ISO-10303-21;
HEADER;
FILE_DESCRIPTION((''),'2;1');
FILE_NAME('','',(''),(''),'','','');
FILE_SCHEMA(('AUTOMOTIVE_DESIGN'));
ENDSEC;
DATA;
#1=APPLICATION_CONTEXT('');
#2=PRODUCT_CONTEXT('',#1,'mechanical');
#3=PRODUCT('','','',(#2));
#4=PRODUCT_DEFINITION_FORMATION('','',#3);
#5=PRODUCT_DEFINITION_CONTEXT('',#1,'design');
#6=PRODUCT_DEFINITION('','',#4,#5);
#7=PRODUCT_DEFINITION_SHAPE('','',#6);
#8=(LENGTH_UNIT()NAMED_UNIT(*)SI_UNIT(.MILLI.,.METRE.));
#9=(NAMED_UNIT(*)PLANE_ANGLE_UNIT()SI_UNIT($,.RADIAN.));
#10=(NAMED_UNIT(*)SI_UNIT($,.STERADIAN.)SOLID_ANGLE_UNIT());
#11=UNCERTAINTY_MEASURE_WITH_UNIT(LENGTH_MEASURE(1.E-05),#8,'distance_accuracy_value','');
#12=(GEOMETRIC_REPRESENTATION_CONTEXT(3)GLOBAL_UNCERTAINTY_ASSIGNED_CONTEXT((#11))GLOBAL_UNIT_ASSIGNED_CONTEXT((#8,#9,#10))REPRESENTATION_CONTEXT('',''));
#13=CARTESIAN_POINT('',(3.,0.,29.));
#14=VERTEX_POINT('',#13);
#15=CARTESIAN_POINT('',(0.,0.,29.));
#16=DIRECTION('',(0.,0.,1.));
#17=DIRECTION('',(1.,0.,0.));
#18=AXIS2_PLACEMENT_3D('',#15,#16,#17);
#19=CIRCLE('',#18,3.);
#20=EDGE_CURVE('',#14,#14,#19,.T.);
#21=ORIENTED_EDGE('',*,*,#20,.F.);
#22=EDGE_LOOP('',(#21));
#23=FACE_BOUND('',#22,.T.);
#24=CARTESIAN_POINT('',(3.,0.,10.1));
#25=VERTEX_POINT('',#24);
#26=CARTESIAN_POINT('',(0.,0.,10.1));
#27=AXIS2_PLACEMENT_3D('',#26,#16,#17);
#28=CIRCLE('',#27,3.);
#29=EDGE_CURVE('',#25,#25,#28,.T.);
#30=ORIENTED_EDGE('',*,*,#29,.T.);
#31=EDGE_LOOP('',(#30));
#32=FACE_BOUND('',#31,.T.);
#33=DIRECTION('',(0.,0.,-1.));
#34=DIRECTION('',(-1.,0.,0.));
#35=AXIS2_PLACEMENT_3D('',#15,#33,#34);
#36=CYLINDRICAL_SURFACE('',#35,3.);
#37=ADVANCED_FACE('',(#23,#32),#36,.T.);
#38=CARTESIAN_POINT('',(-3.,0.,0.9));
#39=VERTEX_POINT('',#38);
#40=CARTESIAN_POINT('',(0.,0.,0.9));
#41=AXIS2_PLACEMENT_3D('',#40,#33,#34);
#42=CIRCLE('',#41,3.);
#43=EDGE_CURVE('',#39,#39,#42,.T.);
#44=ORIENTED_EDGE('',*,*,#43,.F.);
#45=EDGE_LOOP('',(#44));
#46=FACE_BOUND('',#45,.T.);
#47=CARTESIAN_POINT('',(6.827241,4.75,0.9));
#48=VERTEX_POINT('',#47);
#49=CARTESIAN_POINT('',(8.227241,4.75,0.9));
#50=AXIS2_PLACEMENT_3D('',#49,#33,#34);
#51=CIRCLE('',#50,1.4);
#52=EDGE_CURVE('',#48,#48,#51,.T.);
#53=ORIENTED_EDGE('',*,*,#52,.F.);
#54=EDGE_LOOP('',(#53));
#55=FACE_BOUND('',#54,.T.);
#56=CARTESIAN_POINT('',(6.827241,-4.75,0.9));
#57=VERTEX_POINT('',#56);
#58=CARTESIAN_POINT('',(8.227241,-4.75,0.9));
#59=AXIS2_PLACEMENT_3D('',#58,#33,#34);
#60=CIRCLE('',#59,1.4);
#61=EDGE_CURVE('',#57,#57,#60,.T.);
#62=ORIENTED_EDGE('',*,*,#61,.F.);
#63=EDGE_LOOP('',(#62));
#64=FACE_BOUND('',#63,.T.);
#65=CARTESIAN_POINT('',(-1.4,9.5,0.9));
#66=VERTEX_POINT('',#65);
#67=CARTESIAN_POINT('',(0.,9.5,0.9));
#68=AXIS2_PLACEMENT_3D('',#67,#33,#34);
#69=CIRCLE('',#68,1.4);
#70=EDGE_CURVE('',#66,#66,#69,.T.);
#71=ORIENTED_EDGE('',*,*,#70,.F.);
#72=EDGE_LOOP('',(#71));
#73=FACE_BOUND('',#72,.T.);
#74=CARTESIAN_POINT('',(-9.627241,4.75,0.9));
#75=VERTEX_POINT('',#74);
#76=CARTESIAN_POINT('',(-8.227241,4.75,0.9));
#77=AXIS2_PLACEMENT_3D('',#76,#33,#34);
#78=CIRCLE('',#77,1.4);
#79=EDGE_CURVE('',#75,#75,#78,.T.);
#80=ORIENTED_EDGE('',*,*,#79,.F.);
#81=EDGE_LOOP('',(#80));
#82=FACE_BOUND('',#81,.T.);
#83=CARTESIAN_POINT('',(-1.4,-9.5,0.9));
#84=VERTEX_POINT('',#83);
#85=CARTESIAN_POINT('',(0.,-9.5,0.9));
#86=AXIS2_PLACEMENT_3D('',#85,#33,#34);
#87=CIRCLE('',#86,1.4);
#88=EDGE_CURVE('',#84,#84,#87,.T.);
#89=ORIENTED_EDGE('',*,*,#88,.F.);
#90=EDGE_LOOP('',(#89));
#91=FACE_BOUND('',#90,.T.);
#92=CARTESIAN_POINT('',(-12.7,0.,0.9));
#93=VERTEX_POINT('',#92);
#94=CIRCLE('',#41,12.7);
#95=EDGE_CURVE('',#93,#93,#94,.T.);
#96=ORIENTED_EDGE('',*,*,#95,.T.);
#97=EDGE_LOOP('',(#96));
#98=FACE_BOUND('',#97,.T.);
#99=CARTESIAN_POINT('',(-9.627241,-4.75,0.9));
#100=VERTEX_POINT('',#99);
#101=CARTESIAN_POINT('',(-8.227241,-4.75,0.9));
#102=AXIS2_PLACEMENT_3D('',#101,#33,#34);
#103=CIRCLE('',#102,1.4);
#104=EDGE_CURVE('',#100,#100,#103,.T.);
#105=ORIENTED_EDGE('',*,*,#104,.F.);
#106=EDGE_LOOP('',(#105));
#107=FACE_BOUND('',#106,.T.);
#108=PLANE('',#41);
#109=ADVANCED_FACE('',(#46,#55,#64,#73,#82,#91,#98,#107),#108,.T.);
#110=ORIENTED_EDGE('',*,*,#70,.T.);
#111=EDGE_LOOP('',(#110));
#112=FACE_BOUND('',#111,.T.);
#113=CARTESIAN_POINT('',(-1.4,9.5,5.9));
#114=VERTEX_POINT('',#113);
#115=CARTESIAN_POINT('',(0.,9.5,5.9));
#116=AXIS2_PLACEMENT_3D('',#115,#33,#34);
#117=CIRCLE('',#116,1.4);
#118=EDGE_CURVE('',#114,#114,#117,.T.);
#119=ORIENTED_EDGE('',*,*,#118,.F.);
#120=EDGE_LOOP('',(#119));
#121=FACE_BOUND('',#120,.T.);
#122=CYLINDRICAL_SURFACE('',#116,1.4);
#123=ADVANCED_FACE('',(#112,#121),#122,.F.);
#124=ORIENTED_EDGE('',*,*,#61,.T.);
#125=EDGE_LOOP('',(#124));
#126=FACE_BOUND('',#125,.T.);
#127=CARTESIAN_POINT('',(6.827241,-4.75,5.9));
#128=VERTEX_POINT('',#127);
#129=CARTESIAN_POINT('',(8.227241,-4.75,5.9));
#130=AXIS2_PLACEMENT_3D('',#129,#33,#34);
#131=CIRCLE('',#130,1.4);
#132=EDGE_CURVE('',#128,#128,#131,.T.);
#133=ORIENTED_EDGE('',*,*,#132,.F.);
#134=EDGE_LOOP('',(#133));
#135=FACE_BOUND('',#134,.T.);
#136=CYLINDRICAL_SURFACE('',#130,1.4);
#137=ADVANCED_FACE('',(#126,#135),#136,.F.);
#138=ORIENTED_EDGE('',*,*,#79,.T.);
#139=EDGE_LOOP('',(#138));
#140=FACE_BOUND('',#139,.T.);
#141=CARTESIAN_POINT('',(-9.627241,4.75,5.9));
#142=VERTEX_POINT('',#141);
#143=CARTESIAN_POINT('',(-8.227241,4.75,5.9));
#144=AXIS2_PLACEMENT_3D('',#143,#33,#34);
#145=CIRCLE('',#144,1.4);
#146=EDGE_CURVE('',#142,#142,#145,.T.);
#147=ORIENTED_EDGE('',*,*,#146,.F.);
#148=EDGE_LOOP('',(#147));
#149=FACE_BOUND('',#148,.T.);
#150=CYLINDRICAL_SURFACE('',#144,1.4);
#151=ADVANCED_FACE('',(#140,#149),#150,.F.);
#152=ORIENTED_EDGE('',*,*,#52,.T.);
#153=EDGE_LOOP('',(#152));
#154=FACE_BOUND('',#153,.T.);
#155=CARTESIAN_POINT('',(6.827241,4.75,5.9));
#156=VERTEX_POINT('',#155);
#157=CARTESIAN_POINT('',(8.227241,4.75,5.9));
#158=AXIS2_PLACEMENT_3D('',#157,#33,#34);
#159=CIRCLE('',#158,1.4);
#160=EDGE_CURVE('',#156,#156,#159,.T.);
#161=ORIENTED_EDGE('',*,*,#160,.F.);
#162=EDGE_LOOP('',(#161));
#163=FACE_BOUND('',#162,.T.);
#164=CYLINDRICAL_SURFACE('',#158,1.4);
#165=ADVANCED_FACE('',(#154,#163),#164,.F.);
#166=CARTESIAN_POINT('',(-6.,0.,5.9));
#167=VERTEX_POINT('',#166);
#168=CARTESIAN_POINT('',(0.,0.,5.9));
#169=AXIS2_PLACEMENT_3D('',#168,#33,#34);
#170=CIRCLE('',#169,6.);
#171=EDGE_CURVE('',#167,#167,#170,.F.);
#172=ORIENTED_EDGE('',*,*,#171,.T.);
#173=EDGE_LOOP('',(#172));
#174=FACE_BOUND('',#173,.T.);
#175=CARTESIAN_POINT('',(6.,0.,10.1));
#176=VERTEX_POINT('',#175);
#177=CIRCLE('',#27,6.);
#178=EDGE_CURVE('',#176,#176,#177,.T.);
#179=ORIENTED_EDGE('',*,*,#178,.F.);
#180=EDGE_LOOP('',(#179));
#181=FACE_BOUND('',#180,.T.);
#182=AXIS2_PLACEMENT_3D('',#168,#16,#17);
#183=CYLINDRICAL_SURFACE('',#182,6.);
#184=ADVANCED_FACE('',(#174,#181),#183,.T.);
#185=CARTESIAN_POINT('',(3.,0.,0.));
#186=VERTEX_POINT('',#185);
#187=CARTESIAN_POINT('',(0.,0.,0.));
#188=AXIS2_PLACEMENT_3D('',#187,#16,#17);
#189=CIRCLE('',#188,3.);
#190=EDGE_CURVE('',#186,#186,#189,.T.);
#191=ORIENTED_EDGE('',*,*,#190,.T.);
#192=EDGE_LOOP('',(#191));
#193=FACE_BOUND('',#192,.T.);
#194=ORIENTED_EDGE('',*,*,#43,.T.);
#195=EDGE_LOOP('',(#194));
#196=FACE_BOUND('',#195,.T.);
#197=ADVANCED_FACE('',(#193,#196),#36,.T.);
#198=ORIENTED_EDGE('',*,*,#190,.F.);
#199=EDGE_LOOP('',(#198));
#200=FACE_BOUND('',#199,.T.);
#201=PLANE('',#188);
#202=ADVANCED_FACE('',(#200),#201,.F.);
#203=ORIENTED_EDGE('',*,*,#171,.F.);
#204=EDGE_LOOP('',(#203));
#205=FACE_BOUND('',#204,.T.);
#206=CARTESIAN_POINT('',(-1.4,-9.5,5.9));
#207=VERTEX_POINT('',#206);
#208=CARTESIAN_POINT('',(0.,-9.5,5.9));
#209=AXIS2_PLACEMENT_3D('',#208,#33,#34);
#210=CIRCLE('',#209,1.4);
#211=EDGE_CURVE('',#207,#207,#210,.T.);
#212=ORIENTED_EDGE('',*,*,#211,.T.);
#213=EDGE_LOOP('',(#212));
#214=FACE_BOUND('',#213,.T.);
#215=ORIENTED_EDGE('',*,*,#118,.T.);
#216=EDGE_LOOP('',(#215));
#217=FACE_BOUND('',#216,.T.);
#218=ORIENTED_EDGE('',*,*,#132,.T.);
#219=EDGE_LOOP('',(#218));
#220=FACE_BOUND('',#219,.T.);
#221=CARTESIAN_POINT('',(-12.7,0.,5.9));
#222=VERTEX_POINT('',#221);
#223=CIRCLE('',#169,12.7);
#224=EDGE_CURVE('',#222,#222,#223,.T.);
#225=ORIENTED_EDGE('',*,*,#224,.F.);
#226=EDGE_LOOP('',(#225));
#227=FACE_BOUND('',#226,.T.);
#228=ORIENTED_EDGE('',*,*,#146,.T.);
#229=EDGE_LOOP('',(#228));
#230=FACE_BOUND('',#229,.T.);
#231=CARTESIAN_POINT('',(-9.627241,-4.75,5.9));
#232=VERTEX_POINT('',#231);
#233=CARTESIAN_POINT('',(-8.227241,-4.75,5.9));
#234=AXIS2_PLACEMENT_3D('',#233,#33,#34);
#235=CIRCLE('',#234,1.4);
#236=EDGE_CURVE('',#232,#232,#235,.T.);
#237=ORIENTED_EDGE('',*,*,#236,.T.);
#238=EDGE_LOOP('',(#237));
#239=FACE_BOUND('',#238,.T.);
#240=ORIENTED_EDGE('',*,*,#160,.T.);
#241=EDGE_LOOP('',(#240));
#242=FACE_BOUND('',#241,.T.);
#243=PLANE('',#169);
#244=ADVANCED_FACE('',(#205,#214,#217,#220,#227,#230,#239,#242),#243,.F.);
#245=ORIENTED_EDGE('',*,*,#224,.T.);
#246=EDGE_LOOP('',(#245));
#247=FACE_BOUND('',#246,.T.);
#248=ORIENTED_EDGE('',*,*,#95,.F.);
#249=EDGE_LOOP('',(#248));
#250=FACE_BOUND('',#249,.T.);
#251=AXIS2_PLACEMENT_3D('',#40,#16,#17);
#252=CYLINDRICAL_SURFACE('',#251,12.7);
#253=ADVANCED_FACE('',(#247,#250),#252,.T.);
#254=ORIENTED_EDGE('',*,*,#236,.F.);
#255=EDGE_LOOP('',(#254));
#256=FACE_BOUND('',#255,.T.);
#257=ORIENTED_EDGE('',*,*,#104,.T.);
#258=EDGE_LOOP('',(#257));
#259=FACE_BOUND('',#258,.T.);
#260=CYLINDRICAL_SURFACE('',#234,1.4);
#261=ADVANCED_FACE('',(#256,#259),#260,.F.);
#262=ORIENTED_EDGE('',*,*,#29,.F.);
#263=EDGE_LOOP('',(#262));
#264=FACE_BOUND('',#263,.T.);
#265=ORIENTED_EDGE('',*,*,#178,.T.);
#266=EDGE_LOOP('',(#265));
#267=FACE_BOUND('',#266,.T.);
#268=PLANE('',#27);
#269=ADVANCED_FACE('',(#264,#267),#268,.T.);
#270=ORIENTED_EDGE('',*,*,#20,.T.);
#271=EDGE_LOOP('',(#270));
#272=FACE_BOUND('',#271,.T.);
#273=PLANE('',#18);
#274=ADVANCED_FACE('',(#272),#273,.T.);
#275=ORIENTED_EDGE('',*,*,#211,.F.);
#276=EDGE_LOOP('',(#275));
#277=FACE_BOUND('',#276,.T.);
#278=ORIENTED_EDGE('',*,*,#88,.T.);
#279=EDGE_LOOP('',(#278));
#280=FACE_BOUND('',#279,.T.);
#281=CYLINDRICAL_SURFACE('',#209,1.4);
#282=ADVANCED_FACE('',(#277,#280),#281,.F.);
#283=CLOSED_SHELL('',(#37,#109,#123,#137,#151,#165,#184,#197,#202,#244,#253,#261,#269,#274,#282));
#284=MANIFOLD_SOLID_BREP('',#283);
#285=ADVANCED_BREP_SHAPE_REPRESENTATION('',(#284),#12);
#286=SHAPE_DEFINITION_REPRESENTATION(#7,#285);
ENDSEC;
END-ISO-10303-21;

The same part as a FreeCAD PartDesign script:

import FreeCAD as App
import Part
import Sketcher
from FreeCAD import Vector

doc = App.newDocument("Part")
body = doc.addObject("PartDesign::Body", "Body")

# Sketch on XY plane
sketch1 = body.newObject("Sketcher::SketchObject", "Sketch")
sketch1.AttachmentSupport = (doc.getObject("XY_Plane"), [""])
sketch1.MapMode = "FlatFace"
sketch1.addGeometry(Part.Circle(Vector(0, 0, 0), Vector(0, 0, 1), 3), False)
sketch1.addConstraint(Sketcher.Constraint("Coincident", 0, 3, -1, 1))
sketch1.addConstraint(Sketcher.Constraint("Diameter", 0, 6.0))
pad1 = body.newObject("PartDesign::Pad", "Pad")
pad1.Profile = sketch1
pad1.Length = 29

# Sketch on XY plane
sketch2 = body.newObject("Sketcher::SketchObject", "Sketch001")
sketch2.AttachmentSupport = (doc.getObject("XY_Plane"), [""])
sketch2.MapMode = "FlatFace"
sketch2.AttachmentOffset = App.Placement(Vector(0, 0, 8), App.Rotation())
sketch2.addGeometry(Part.Circle(Vector(0, 0, 0), Vector(0, 0, 1), 6), False)
sketch2.addConstraint(Sketcher.Constraint("Coincident", 0, 3, -1, 1))
sketch2.addConstraint(Sketcher.Constraint("Diameter", 0, 12.0))
pad2 = body.newObject("PartDesign::Pad", "Pad001")
pad2.Profile = sketch2
pad2.Length = 2.1
pad2.Reversed = True

# Sketch on XY plane
sketch3 = body.newObject("Sketcher::SketchObject", "Sketch002")
sketch3.AttachmentSupport = (doc.getObject("XY_Plane"), [""])
sketch3.MapMode = "FlatFace"
sketch3.AttachmentOffset = App.Placement(Vector(0, 0, 5.9), App.Rotation())
sketch3.addGeometry(Part.Circle(Vector(0, 0, 0), Vector(0, 0, 1), 12.7), False)
sketch3.addConstraint(Sketcher.Constraint("Coincident", 0, 3, -1, 1))
sketch3.addConstraint(Sketcher.Constraint("Diameter", 0, 25.4))
pad3 = body.newObject("PartDesign::Pad", "Pad002")
pad3.Profile = sketch3
pad3.Length = 5
pad3.Reversed = True

# Sketch on XY plane
sketch4 = body.newObject("Sketcher::SketchObject", "Sketch003")
sketch4.AttachmentSupport = (doc.getObject("XY_Plane"), [""])
sketch4.MapMode = "FlatFace"
sketch4.AttachmentOffset = App.Placement(Vector(0, 0, 8), App.Rotation())
sketch4.addGeometry(Part.Circle(Vector(0, 0, 0), Vector(0, 0, 1), 6), False)
sketch4.addConstraint(Sketcher.Constraint("Coincident", 0, 3, -1, 1))
sketch4.addConstraint(Sketcher.Constraint("Diameter", 0, 12.0))
pad4 = body.newObject("PartDesign::Pad", "Pad003")
pad4.Profile = sketch4
pad4.Length = 2.1

# Sketch on XY plane
sketch5 = body.newObject("Sketcher::SketchObject", "Sketch004")
sketch5.AttachmentSupport = (doc.getObject("XY_Plane"), [""])
sketch5.MapMode = "FlatFace"
sketch5.AttachmentOffset = App.Placement(Vector(0, 0, 0.9), App.Rotation())
sketch5.addGeometry(Part.Circle(Vector(-8.227241, 4.75, 0), Vector(0, 0, 1), 1.4), False)
sketch5.addGeometry(Part.Circle(Vector(0, 9.5, 0), Vector(0, 0, 1), 1.4), False)
sketch5.addGeometry(Part.Circle(Vector(-8.227241, -4.75, 0), Vector(0, 0, 1), 1.4), False)
sketch5.addGeometry(Part.Circle(Vector(0, -9.5, 0), Vector(0, 0, 1), 1.4), False)
sketch5.addGeometry(Part.Circle(Vector(8.227241, -4.75, 0), Vector(0, 0, 1), 1.4), False)
sketch5.addGeometry(Part.Circle(Vector(8.227241, 4.75, 0), Vector(0, 0, 1), 1.4), False)
sketch5.addConstraint(Sketcher.Constraint("Equal", 0, 1))
sketch5.addConstraint(Sketcher.Constraint("Equal", 1, 2))
sketch5.addConstraint(Sketcher.Constraint("Equal", 2, 3))
sketch5.addConstraint(Sketcher.Constraint("Equal", 3, 4))
sketch5.addConstraint(Sketcher.Constraint("Equal", 4, 5))
sketch5.addConstraint(Sketcher.Constraint("Symmetric", 1, 3, 3, 3, -1, 1))
sketch5.addConstraint(Sketcher.Constraint("Symmetric", 0, 3, 4, 3, -1, 1))
sketch5.addConstraint(Sketcher.Constraint("Symmetric", 2, 3, 5, 3, -1, 1))
sketch5.addConstraint(Sketcher.Constraint("Symmetric", 2, 3, 4, 3, -2))
sketch5.addConstraint(Sketcher.Constraint("PointOnObject", 1, 3, -2))
sketch5.addConstraint(Sketcher.Constraint("Diameter", 0, 2.8))
sketch5.addConstraint(Sketcher.Constraint("DistanceY", 3, 3, 1, 3, 19.0))
sketch5.addConstraint(Sketcher.Constraint("DistanceY", 2, 3, 0, 3, 9.5))
sketch5.addConstraint(Sketcher.Constraint("DistanceX", 0, 3, -1, 1, 8.227241))
pocket1 = body.newObject("PartDesign::Pocket", "Pocket")
pocket1.Profile = sketch5
pocket1.Length = 5
pocket1.Reversed = True

doc.recompute()
